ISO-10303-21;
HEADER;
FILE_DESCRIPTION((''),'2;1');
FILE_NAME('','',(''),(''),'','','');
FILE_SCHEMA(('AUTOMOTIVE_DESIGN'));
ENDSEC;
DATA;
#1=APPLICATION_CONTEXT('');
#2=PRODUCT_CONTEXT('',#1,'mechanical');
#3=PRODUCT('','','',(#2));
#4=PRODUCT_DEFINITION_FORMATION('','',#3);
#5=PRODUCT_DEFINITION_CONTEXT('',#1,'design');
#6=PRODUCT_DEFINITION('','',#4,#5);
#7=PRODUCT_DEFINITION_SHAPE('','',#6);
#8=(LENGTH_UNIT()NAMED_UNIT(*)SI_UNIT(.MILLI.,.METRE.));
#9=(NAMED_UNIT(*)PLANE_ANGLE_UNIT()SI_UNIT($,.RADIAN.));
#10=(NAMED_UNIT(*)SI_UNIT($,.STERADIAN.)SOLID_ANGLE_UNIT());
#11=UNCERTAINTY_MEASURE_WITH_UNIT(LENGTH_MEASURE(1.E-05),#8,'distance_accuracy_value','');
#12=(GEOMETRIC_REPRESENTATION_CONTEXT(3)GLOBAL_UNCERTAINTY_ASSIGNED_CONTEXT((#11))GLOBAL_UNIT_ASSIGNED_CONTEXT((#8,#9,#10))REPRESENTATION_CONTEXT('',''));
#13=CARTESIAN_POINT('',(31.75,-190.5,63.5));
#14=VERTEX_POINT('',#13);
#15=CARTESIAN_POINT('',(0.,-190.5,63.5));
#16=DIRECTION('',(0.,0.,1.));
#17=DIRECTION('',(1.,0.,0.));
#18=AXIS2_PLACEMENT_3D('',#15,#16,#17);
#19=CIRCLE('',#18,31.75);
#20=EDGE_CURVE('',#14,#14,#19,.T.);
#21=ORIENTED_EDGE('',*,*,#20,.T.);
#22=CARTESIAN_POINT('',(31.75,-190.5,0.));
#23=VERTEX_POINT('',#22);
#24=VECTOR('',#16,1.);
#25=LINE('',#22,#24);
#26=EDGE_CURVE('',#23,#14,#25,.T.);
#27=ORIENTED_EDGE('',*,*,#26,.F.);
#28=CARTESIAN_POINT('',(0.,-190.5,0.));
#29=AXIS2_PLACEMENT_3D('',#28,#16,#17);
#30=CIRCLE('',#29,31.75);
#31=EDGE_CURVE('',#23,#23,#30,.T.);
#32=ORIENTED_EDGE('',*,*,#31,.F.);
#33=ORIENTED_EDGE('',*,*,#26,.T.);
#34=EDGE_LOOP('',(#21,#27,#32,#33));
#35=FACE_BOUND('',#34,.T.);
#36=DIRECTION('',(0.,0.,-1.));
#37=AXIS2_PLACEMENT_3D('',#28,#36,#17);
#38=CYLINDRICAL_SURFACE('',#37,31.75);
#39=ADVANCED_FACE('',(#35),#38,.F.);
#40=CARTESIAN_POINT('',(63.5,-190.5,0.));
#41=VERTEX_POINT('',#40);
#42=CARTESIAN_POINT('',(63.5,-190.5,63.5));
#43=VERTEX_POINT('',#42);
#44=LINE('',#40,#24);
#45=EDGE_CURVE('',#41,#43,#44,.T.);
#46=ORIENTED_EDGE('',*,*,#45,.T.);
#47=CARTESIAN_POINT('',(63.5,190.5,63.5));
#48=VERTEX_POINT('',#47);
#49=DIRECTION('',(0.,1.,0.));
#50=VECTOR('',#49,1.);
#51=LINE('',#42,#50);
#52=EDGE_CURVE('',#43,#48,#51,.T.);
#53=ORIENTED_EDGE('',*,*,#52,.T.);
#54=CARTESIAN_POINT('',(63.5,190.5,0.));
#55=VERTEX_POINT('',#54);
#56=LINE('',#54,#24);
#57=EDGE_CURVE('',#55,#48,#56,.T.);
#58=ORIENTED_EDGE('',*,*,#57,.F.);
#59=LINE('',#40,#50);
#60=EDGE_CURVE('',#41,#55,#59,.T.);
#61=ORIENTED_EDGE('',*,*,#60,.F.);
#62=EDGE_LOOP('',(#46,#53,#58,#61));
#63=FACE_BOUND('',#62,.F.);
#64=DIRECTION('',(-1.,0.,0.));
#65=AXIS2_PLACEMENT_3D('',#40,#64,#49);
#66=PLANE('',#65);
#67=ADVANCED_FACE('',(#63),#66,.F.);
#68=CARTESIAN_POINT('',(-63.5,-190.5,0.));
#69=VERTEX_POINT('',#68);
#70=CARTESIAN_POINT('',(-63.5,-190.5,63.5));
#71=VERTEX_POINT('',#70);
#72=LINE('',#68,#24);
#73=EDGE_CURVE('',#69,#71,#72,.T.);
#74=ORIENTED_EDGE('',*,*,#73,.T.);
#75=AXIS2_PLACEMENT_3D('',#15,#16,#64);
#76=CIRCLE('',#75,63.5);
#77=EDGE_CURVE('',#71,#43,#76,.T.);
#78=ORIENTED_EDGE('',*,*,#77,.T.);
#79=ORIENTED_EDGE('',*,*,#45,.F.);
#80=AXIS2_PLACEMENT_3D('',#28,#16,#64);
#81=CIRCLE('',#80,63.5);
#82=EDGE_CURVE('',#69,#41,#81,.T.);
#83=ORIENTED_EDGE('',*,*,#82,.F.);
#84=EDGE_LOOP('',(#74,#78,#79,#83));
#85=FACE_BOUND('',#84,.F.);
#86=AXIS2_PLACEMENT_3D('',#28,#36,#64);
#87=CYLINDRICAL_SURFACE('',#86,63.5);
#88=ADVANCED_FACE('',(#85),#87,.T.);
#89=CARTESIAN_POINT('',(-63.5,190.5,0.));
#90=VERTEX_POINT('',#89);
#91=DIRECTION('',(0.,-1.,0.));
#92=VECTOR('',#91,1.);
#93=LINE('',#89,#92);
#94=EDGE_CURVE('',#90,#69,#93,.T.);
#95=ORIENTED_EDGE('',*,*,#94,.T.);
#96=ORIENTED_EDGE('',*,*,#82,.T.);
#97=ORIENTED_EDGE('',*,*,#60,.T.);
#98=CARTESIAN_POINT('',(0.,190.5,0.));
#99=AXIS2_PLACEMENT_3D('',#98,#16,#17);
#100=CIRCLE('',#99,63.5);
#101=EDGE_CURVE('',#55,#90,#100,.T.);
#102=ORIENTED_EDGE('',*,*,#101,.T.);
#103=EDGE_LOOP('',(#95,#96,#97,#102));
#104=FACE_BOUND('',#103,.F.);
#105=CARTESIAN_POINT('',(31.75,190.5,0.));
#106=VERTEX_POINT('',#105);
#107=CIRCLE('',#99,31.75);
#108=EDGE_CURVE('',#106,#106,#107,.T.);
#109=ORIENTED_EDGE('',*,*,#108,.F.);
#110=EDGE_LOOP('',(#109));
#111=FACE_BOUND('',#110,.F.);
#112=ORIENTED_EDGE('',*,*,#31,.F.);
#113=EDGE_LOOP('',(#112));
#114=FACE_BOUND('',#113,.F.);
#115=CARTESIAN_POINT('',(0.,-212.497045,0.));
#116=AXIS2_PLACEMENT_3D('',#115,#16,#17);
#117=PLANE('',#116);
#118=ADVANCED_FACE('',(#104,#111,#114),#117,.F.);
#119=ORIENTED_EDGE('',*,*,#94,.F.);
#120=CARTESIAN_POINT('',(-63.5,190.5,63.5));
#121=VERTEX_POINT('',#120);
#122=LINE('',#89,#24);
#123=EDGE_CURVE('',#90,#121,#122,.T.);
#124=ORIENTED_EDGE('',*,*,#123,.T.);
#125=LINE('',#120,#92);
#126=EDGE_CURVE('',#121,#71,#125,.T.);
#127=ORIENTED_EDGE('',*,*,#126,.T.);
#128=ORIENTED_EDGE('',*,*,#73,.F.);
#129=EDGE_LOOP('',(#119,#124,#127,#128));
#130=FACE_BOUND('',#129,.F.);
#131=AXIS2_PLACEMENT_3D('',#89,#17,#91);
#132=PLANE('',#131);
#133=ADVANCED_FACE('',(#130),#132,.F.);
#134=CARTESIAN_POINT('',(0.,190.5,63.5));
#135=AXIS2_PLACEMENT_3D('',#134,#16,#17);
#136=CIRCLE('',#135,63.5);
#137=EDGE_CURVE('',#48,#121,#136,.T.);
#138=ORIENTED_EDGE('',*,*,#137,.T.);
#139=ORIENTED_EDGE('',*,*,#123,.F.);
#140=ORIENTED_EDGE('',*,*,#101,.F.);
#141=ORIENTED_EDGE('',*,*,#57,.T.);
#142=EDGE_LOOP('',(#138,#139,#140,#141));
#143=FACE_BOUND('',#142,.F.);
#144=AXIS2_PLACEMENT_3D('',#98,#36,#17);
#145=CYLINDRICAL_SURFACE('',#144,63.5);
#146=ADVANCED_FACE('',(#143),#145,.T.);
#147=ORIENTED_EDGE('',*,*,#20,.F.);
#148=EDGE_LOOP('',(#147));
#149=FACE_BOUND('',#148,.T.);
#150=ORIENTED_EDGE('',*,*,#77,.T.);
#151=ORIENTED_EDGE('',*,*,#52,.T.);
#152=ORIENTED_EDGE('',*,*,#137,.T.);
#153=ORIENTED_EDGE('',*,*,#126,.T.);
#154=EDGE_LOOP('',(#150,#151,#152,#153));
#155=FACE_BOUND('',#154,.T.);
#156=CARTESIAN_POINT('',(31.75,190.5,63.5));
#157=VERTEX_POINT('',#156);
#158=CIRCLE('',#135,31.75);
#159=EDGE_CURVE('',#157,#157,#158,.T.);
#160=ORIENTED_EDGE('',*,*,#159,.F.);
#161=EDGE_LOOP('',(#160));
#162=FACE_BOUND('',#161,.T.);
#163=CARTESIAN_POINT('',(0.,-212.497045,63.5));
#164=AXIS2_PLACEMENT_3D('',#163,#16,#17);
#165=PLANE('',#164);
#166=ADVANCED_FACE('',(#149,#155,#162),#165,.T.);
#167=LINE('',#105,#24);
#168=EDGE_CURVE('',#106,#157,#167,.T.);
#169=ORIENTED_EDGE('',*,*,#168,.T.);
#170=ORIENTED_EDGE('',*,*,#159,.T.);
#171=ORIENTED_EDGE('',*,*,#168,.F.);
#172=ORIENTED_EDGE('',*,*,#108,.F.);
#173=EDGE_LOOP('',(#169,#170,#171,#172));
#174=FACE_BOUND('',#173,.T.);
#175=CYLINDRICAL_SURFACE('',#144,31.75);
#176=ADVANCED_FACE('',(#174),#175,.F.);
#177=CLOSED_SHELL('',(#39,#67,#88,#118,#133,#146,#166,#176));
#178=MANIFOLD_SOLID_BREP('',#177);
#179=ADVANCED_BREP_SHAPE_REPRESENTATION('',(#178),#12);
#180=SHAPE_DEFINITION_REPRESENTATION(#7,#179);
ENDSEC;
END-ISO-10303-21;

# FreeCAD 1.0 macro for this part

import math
import FreeCAD as App
import Part
import Sketcher
Q = App.Units.Quantity

doc = App.newDocument("Part")
params = doc.addObject("Spreadsheet::Sheet", "Params")
for row, (alias, value) in enumerate([
    ("sketch1_radius", "2.5 in"),
    ("sketch1_height", "15 in"),
    ("pad1_length", "2.5 in"),
    ("sketch2_diameter", "2.5 in"),
], start=1):
    params.set(f"A{row}", alias)
    params.set(f"B{row}", "=" + value)
    params.setAlias(f"B{row}", alias)

body = doc.addObject("PartDesign::Body", "Body")

sketch1 = doc.addObject("Sketcher::SketchObject", "Sketch")
body.addObject(sketch1)
sketch1.AttachmentSupport = (doc.XY_Plane, [""])
sketch1.MapMode = "FlatFace"
sketch1.addGeometry([
    Part.ArcOfCircle(Part.Circle(App.Vector(0, -190, 0), App.Vector(0, 0, 1), 64), math.radians(180), math.radians(360)),
    Part.LineSegment(App.Vector(64, -190, 0), App.Vector(64, 190, 0)),
    Part.ArcOfCircle(Part.Circle(App.Vector(0, 190, 0), App.Vector(0, 0, 1), 64), math.radians(0), math.radians(180)),
    Part.LineSegment(App.Vector(-64, 190, 0), App.Vector(-64, -190, 0)),
], False)
sketch1.addConstraint([
    Sketcher.Constraint("Tangent", 0, 2, 1, 1),
    Sketcher.Constraint("Tangent", 1, 2, 2, 1),
    Sketcher.Constraint("Tangent", 2, 2, 3, 1),
    Sketcher.Constraint("Tangent", 3, 2, 0, 1),
    Sketcher.Constraint("Vertical", 1),
    Sketcher.Constraint("Vertical", 3),
    Sketcher.Constraint("Symmetric", 0, 3, 2, 3, -1, 1),
    Sketcher.Constraint("Radius", 0, Q("2.5 in")),
    Sketcher.Constraint("DistanceY", 1, 1, 1, 2, Q("15 in")),
])
sketch1.setExpression("Constraints[7]", "Params.sketch1_radius")
sketch1.setExpression("Constraints[8]", "Params.sketch1_height")
pad1 = doc.addObject("PartDesign::Pad", "Pad")
body.addObject(pad1)
pad1.Profile = sketch1
pad1.setExpression("Length", "Params.pad1_length")

sketch2 = doc.addObject("Sketcher::SketchObject", "Sketch001")
body.addObject(sketch2)
sketch2.AttachmentSupport = (doc.XY_Plane, [""])
sketch2.MapMode = "FlatFace"
sketch2.addGeometry([
    Part.Circle(App.Vector(0, 190, 0), App.Vector(0, 0, 1), 32),
    Part.Circle(App.Vector(0, -190, 0), App.Vector(0, 0, 1), 32),
], False)
sketch2.addConstraint([
    Sketcher.Constraint("Equal", 0, 1),
    Sketcher.Constraint("Symmetric", 0, 3, 1, 3, -1, 1),
    Sketcher.Constraint("PointOnObject", 0, 3, -2),
    Sketcher.Constraint("Diameter", 0, Q("2.5 in")),
    Sketcher.Constraint("DistanceY", 1, 3, 0, 3, Q("15 in")),
])
sketch2.setExpression("Constraints[3]", "Params.sketch2_diameter")
pocket1 = doc.addObject("PartDesign::Pocket", "Pocket")
body.addObject(pocket1)
pocket1.Profile = sketch2
pocket1.Type = "ThroughAll"
pocket1.Reversed = True

doc.recompute()
